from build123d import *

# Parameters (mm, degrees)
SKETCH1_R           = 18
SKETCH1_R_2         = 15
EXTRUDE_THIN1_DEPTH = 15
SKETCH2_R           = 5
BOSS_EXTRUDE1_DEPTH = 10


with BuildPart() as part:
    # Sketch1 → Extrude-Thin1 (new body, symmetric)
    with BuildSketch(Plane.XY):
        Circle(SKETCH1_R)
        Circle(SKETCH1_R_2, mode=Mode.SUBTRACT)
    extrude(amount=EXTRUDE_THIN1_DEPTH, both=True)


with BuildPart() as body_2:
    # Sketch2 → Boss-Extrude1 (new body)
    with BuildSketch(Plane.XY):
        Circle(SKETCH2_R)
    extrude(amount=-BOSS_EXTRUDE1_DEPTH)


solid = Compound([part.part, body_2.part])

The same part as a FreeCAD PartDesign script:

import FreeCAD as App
import Part
import Sketcher
from FreeCAD import Vector

doc = App.newDocument("Part")
body = doc.addObject("PartDesign::Body", "Body")

sketch1 = body.newObject("Sketcher::SketchObject", "Sketch")
sketch1.AttachmentSupport = (doc.getObject("XY_Plane"), [""])
sketch1.MapMode = "FlatFace"
sketch1.addGeometry([
    Part.Circle(Vector(0, 0, 0), Vector(0, 0, 1), 18),
    Part.Circle(Vector(0, 0, 0), Vector(0, 0, 1), 15),
], False)
sketch1.addConstraint([
    Sketcher.Constraint("Coincident", 0, 3, -1, 1),
    Sketcher.Constraint("Coincident", 1, 3, -1, 1),
    Sketcher.Constraint("Diameter", 0, 36.0),
    Sketcher.Constraint("Diameter", 1, 30.0),
])
pad1 = body.newObject("PartDesign::Pad", "Pad")
pad1.Profile = sketch1
pad1.Length = 30
pad1.Midplane = True
body2 = doc.addObject("PartDesign::Body", "Body001")

sketch2 = body2.newObject("Sketcher::SketchObject", "Sketch001")
sketch2.AttachmentSupport = (doc.getObject("XY_Plane001"), [""])
sketch2.MapMode = "FlatFace"
sketch2.addGeometry(Part.Circle(Vector(0, 0, 0), Vector(0, 0, 1), 5), False)
sketch2.addConstraint([
    Sketcher.Constraint("Coincident", 0, 3, -1, 1),
    Sketcher.Constraint("Diameter", 0, 10.0),
])
pad2 = body2.newObject("PartDesign::Pad", "Pad001")
pad2.Profile = sketch2
pad2.Length = 10
pad2.Reversed = True

doc.recompute()
